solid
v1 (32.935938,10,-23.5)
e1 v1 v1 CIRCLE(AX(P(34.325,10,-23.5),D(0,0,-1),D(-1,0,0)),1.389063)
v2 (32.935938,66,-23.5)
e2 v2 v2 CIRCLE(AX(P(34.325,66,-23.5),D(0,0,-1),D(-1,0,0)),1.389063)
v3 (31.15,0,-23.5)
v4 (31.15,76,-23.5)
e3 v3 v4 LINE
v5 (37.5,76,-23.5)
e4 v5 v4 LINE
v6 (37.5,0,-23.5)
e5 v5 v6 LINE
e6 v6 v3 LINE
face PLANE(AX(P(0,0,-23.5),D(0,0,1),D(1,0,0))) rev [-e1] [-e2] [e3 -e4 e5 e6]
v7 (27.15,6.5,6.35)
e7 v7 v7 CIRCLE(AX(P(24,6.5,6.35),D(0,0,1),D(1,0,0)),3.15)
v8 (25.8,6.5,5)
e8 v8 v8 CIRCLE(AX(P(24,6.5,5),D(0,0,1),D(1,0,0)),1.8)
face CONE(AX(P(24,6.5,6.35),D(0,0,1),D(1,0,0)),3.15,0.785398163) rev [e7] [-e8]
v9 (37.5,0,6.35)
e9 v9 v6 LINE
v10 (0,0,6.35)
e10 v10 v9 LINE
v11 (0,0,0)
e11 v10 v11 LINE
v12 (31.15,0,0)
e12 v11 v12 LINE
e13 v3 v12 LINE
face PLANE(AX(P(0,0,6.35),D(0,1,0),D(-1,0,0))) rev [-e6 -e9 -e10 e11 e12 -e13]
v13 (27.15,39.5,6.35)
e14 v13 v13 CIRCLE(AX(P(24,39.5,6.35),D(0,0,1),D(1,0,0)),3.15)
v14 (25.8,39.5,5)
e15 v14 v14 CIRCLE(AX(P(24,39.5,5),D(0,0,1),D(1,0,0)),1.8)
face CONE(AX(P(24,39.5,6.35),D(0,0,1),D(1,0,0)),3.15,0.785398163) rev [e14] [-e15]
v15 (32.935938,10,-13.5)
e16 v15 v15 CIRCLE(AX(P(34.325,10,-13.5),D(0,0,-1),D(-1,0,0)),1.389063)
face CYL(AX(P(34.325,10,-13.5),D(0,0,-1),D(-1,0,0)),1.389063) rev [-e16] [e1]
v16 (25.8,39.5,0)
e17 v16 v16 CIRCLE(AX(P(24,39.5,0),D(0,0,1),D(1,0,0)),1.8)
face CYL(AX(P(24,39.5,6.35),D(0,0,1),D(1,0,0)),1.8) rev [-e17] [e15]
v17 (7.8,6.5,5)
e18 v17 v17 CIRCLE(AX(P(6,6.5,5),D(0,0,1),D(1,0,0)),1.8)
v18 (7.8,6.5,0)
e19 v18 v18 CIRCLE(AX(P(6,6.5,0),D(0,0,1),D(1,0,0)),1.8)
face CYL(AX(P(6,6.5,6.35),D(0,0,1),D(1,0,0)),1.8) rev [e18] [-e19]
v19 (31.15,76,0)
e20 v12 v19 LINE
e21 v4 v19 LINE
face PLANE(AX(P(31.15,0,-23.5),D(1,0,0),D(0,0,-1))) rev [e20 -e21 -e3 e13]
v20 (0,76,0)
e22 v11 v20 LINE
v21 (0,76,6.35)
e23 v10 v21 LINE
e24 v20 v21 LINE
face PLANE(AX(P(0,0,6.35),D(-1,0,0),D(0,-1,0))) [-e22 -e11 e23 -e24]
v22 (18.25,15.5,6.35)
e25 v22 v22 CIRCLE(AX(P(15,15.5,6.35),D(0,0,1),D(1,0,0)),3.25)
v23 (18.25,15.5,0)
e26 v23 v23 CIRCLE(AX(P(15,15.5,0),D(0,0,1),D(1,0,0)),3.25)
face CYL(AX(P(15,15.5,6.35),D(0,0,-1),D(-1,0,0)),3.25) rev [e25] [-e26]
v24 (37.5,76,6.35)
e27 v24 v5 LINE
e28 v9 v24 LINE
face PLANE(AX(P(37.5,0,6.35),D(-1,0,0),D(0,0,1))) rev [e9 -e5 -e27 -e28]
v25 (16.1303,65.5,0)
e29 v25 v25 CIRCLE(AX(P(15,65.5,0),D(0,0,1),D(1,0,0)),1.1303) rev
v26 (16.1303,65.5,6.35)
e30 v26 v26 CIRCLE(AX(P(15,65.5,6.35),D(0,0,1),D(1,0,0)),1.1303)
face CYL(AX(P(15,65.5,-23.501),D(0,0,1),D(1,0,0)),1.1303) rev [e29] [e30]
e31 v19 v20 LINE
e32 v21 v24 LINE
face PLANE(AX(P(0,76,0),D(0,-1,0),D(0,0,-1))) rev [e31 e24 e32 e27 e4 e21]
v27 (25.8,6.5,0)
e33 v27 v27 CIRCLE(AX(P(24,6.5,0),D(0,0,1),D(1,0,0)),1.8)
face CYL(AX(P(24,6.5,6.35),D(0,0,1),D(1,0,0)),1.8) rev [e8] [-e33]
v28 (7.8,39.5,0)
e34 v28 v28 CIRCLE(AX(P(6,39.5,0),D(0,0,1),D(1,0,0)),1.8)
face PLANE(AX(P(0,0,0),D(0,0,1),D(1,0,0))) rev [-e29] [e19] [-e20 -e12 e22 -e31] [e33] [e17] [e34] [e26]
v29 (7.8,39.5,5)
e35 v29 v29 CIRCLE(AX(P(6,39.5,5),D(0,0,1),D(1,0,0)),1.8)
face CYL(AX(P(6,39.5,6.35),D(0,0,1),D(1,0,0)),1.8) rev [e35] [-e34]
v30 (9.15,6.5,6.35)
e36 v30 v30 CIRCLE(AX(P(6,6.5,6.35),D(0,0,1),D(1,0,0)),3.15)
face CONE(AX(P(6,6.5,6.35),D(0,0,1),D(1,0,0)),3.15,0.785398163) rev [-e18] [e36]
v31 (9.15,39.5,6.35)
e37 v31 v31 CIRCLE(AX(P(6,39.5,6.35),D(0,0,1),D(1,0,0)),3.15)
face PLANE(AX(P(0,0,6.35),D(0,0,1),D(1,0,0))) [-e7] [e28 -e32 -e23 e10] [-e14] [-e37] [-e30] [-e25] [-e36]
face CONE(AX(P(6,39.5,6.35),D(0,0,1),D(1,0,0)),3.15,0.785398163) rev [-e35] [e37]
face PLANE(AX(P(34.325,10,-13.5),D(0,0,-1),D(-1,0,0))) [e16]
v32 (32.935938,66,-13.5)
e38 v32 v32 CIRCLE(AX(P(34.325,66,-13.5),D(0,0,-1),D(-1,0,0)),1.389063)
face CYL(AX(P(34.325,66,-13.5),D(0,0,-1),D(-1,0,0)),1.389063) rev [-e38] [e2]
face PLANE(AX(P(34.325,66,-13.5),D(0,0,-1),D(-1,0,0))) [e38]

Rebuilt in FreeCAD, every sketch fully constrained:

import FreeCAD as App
import Part
import Sketcher
from FreeCAD import Vector
Q = App.Units.Quantity

doc = App.newDocument("Part")
body = doc.addObject("PartDesign::Body", "Body")

# Sketch on XY plane
sketch1 = doc.addObject("Sketcher::SketchObject", "Sketch")
body.addObject(sketch1)
sketch1.AttachmentSupport = (doc.XY_Plane, [""])
sketch1.MapMode = "FlatFace"
sketch1.addGeometry(Part.LineSegment(Vector(0, 46, 0), Vector(0, 0, 0)), False)
sketch1.addGeometry(Part.LineSegment(Vector(0, 0, 0), Vector(37.5, 0, 0)), False)
sketch1.addGeometry(Part.LineSegment(Vector(37.5, 0, 0), Vector(37.5, 46, 0)), False)
sketch1.addGeometry(Part.LineSegment(Vector(37.5, 46, 0), Vector(0, 46, 0)), False)
sketch1.addGeometry(Part.Circle(Vector(6, 6.5, 0), Vector(0, 0, 1), 1.7), False)
sketch1.addGeometry(Part.Circle(Vector(24, 6.5, 0), Vector(0, 0, 1), 1.7), False)
sketch1.addGeometry(Part.Circle(Vector(15, 15.5, 0), Vector(0, 0, 1), 3.2), False)
sketch1.addGeometry(Part.Circle(Vector(6, 39.5, 0), Vector(0, 0, 1), 1.7), False)
sketch1.addGeometry(Part.Circle(Vector(24, 39.5, 0), Vector(0, 0, 1), 1.7), False)
sketch1.addConstraint(Sketcher.Constraint("Coincident", 0, 2, 1, 1))
sketch1.addConstraint(Sketcher.Constraint("Coincident", 1, 2, 2, 1))
sketch1.addConstraint(Sketcher.Constraint("Coincident", 2, 2, 3, 1))
sketch1.addConstraint(Sketcher.Constraint("Coincident", 3, 2, 0, 1))
sketch1.addConstraint(Sketcher.Constraint("Vertical", 0))
sketch1.addConstraint(Sketcher.Constraint("Horizontal", 1))
sketch1.addConstraint(Sketcher.Constraint("Vertical", 2))
sketch1.addConstraint(Sketcher.Constraint("Horizontal", 3))
sketch1.addConstraint(Sketcher.Constraint("Coincident", 0, 2, -1, 1))
sketch1.addConstraint(Sketcher.Constraint("Equal", 4, 5))
sketch1.addConstraint(Sketcher.Constraint("Equal", 5, 7))
sketch1.addConstraint(Sketcher.Constraint("Equal", 7, 8))
sketch1.addConstraint(Sketcher.Constraint("Horizontal", 4, 3, 5, 3))
sketch1.addConstraint(Sketcher.Constraint("Horizontal", 7, 3, 8, 3))
sketch1.addConstraint(Sketcher.Constraint("Vertical", 4, 3, 7, 3))
sketch1.addConstraint(Sketcher.Constraint("Vertical", 5, 3, 8, 3))
sketch1.addConstraint(Sketcher.Constraint("Diameter", 4, Q("3.4 mm")))
sketch1.addConstraint(Sketcher.Constraint("Diameter", 6, Q("6.5 mm")))
sketch1.addConstraint(Sketcher.Constraint("DistanceY", 0, 2, 0, 1, Q("46 mm")))
sketch1.addConstraint(Sketcher.Constraint("DistanceX", 1, 1, 1, 2, Q("37.5 mm")))
sketch1.addConstraint(Sketcher.Constraint("DistanceX", -1, 1, 4, 3, Q("6 mm")))
sketch1.addConstraint(Sketcher.Constraint("DistanceX", -1, 1, 5, 3, Q("24 mm")))
sketch1.addConstraint(Sketcher.Constraint("DistanceX", -1, 1, 6, 3, Q("15 mm")))
sketch1.addConstraint(Sketcher.Constraint("DistanceY", 4, 3, 6, 3, Q("9 mm")))
sketch1.addConstraint(Sketcher.Constraint("DistanceY", 6, 3, 7, 3, Q("24 mm")))
sketch1.addConstraint(Sketcher.Constraint("DistanceY", -1, 1, 4, 3, Q("6.5 mm")))
pad1 = doc.addObject("PartDesign::Pad", "Pad")
body.addObject(pad1)
pad1.Profile = sketch1
pad1.Length = 6.35

# Sketch on XY plane
sketch2 = doc.addObject("Sketcher::SketchObject", "Sketch001")
body.addObject(sketch2)
sketch2.AttachmentSupport = (doc.XY_Plane, [""])
sketch2.MapMode = "FlatFace"
sketch2.AttachmentOffset = App.Placement(Vector(0, 0, 6.35), App.Rotation())
sketch2.addGeometry(Part.Circle(Vector(6, 6.5, 0), Vector(0, 0, 1), 1.8), False)
sketch2.addGeometry(Part.Circle(Vector(6, 39.5, 0), Vector(0, 0, 1), 1.8), False)
sketch2.addGeometry(Part.Circle(Vector(24, 39.5, 0), Vector(0, 0, 1), 1.8), False)
sketch2.addGeometry(Part.Circle(Vector(24, 6.5, 0), Vector(0, 0, 1), 1.8), False)
sketch2.addConstraint(Sketcher.Constraint("Equal", 0, 1))
sketch2.addConstraint(Sketcher.Constraint("Equal", 1, 2))
sketch2.addConstraint(Sketcher.Constraint("Equal", 2, 3))
sketch2.addConstraint(Sketcher.Constraint("Horizontal", 1, 3, 2, 3))
sketch2.addConstraint(Sketcher.Constraint("Horizontal", 0, 3, 3, 3))
sketch2.addConstraint(Sketcher.Constraint("Vertical", 0, 3, 1, 3))
sketch2.addConstraint(Sketcher.Constraint("Vertical", 2, 3, 3, 3))
sketch2.addConstraint(Sketcher.Constraint("Diameter", 0, Q("3.6 mm")))
sketch2.addConstraint(Sketcher.Constraint("DistanceX", -1, 1, 0, 3, Q("6 mm")))
sketch2.addConstraint(Sketcher.Constraint("DistanceX", -1, 1, 2, 3, Q("24 mm")))
sketch2.addConstraint(Sketcher.Constraint("DistanceY", 0, 3, 1, 3, Q("33 mm")))
sketch2.addConstraint(Sketcher.Constraint("DistanceY", -1, 1, 0, 3, Q("6.5 mm")))
doc.recompute()
hole = doc.addObject("PartDesign::Hole", "Hole")
body.addObject(hole)
hole.Profile = sketch2
hole.ThreadType = "None"
hole.Diameter = 3.6
hole.DepthType = "ThroughAll"
hole.HoleCutType = "Countersink"
hole.HoleCutDiameter = 6.3
hole.HoleCutCountersinkAngle = 90

# Sketch on XY plane
sketch3 = doc.addObject("Sketcher::SketchObject", "Sketch002")
body.addObject(sketch3)
sketch3.AttachmentSupport = (doc.XY_Plane, [""])
sketch3.MapMode = "FlatFace"
sketch3.addGeometry(Part.LineSegment(Vector(38, 46, 0), Vector(38, 0, 0)), False)
sketch3.addGeometry(Part.LineSegment(Vector(38, 0, 0), Vector(31, 0, 0)), False)
sketch3.addGeometry(Part.LineSegment(Vector(31, 0, 0), Vector(31, 46, 0)), False)
sketch3.addGeometry(Part.LineSegment(Vector(31, 46, 0), Vector(38, 46, 0)), False)
sketch3.addConstraint(Sketcher.Constraint("Coincident", 0, 2, 1, 1))
sketch3.addConstraint(Sketcher.Constraint("Coincident", 1, 2, 2, 1))
sketch3.addConstraint(Sketcher.Constraint("Coincident", 2, 2, 3, 1))
sketch3.addConstraint(Sketcher.Constraint("Coincident", 3, 2, 0, 1))
sketch3.addConstraint(Sketcher.Constraint("Vertical", 0))
sketch3.addConstraint(Sketcher.Constraint("Horizontal", 1))
sketch3.addConstraint(Sketcher.Constraint("Vertical", 2))
sketch3.addConstraint(Sketcher.Constraint("Horizontal", 3))
sketch3.addConstraint(Sketcher.Constraint("PointOnObject", 0, 2, -1))
sketch3.addConstraint(Sketcher.Constraint("DistanceY", 0, 2, 0, 1, Q("46 mm")))
sketch3.addConstraint(Sketcher.Constraint("DistanceX", 1, 2, 1, 1, Q("6.35 mm")))
sketch3.addConstraint(Sketcher.Constraint("DistanceX", -1, 1, 0, 2, Q("37.5 mm")))
pad2 = doc.addObject("PartDesign::Pad", "Pad001")
body.addObject(pad2)
pad2.Profile = sketch3
pad2.Length = 23.5
pad2.Reversed = True

# Sketch on XZ plane
sketch4 = doc.addObject("Sketcher::SketchObject", "Sketch003")
body.addObject(sketch4)
sketch4.AttachmentSupport = (doc.XZ_Plane, [""])
sketch4.MapMode = "FlatFace"
sketch4.AttachmentOffset = App.Placement(Vector(0, 0, -46), App.Rotation())
sketch4.addGeometry(Part.LineSegment(Vector(31, 0, 0), Vector(0, 0, 0)), False)
sketch4.addGeometry(Part.LineSegment(Vector(0, 0, 0), Vector(0, 6, 0)), False)
sketch4.addGeometry(Part.LineSegment(Vector(0, 6, 0), Vector(38, 6, 0)), False)
sketch4.addGeometry(Part.LineSegment(Vector(38, 6, 0), Vector(38, -24, 0)), False)
sketch4.addGeometry(Part.LineSegment(Vector(38, -24, 0), Vector(31, -24, 0)), False)
sketch4.addGeometry(Part.LineSegment(Vector(31, -24, 0), Vector(31, 0, 0)), False)
sketch4.addConstraint(Sketcher.Constraint("Coincident", 0, 2, 1, 1))
sketch4.addConstraint(Sketcher.Constraint("Coincident", 1, 2, 2, 1))
sketch4.addConstraint(Sketcher.Constraint("Coincident", 2, 2, 3, 1))
sketch4.addConstraint(Sketcher.Constraint("Coincident", 3, 2, 4, 1))
sketch4.addConstraint(Sketcher.Constraint("Coincident", 4, 2, 5, 1))
sketch4.addConstraint(Sketcher.Constraint("Coincident", 5, 2, 0, 1))
sketch4.addConstraint(Sketcher.Constraint("Horizontal", 0))
sketch4.addConstraint(Sketcher.Constraint("Vertical", 1))
sketch4.addConstraint(Sketcher.Constraint("Horizontal", 2))
sketch4.addConstraint(Sketcher.Constraint("Vertical", 3))
sketch4.addConstraint(Sketcher.Constraint("Horizontal", 4))
sketch4.addConstraint(Sketcher.Constraint("Vertical", 5))
sketch4.addConstraint(Sketcher.Constraint("Coincident", 0, 2, -1, 1))
sketch4.addConstraint(Sketcher.Constraint("Equal", 4, 1))
sketch4.addConstraint(Sketcher.Constraint("DistanceX", 2, 1, 2, 2, Q("37.5 mm")))
sketch4.addConstraint(Sketcher.Constraint("DistanceY", 5, 1, 5, 2, Q("23.5 mm")))
sketch4.addConstraint(Sketcher.Constraint("DistanceX", 0, 2, 0, 1, Q("31.15 mm")))
pad3 = doc.addObject("PartDesign::Pad", "Pad002")
body.addObject(pad3)
pad3.Profile = sketch4
pad3.Length = 30
pad3.Reversed = True

# Sketch on XY plane
sketch5 = doc.addObject("Sketcher::SketchObject", "Sketch004")
body.addObject(sketch5)
sketch5.AttachmentSupport = (doc.XY_Plane, [""])
sketch5.MapMode = "FlatFace"
sketch5.AttachmentOffset = App.Placement(Vector(0, 0, 6.35), App.Rotation())
sketch5.addGeometry(Part.Circle(Vector(15, 65.5, 0), Vector(0, 0, 1), 1.1), False)
sketch5.addConstraint(Sketcher.Constraint("DistanceX", -1, 1, 0, 3, Q("15 mm")))
sketch5.addConstraint(Sketcher.Constraint("Diameter", 0, Q("2.2606 mm")))
sketch5.addConstraint(Sketcher.Constraint("DistanceY", -1, 1, 0, 3, Q("65.5 mm")))
pocket1 = doc.addObject("PartDesign::Pocket", "Pocket")
body.addObject(pocket1)
pocket1.Profile = sketch5
pocket1.Type = "UpToFirst"

# Sketch on XY plane
sketch6 = doc.addObject("Sketcher::SketchObject", "Sketch005")
body.addObject(sketch6)
sketch6.AttachmentSupport = (doc.XY_Plane, [""])
sketch6.MapMode = "FlatFace"
sketch6.AttachmentOffset = App.Placement(Vector(0, 0, -23.5), App.Rotation())
sketch6.addGeometry(Part.Circle(Vector(34.3, 10, 0), Vector(0, 0, 1), 1.4), False)
sketch6.addGeometry(Part.Circle(Vector(34.3, 66, 0), Vector(0, 0, 1), 1.4), False)
sketch6.addConstraint(Sketcher.Constraint("Equal", 0, 1))
sketch6.addConstraint(Sketcher.Constraint("Vertical", 0, 3, 1, 3))
sketch6.addConstraint(Sketcher.Constraint("DistanceY", -1, 1, 0, 3, Q("10 mm")))
sketch6.addConstraint(Sketcher.Constraint("DistanceY", -1, 1, 1, 3, Q("66 mm")))
sketch6.addConstraint(Sketcher.Constraint("Diameter", 0, Q("2.778125 mm")))
sketch6.addConstraint(Sketcher.Constraint("DistanceX", -1, 1, 0, 3, Q("34.325 mm")))
pocket2 = doc.addObject("PartDesign::Pocket", "Pocket001")
body.addObject(pocket2)
pocket2.Profile = sketch6
pocket2.Length = 10
pocket2.Reversed = True

doc.recompute()
